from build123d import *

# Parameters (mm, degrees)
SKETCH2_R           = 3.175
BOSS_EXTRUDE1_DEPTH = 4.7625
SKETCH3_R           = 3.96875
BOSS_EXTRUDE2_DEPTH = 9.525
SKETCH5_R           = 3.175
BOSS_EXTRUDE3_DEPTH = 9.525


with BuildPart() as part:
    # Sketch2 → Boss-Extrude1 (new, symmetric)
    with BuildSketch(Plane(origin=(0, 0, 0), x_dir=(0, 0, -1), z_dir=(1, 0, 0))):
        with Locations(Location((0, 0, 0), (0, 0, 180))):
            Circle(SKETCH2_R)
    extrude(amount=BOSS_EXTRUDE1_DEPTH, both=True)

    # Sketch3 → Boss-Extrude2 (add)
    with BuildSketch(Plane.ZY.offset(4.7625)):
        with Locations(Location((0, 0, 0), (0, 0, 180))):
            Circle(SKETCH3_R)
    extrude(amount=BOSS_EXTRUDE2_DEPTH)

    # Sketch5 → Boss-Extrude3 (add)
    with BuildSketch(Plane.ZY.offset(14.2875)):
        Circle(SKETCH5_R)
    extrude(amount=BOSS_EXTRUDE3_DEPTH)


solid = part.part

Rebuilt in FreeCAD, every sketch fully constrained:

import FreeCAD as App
import Part
import Sketcher
Q = App.Units.Quantity

doc = App.newDocument("Part")
body = doc.addObject("PartDesign::Body", "Body")

# Sketch on YZ plane
sketch1 = body.newObject("Sketcher::SketchObject", "Sketch")
sketch1.AttachmentSupport = (doc.getObject("YZ_Plane"), [""])
sketch1.MapMode = "FlatFace"
sketch1.addGeometry(Part.Circle(App.Vector(0, 0, 0), App.Vector(0, 0, 1), 3.2), False)
sketch1.addConstraint([
    Sketcher.Constraint("Coincident", 0, 3, -1, 1),
    Sketcher.Constraint("Diameter", 0, Q("0.25 in")),
])
pad1 = body.newObject("PartDesign::Pad", "Pad")
pad1.Profile = sketch1
pad1.Length = Q("0.375 in")
pad1.Midplane = True

# Sketch on YZ plane
sketch2 = body.newObject("Sketcher::SketchObject", "Sketch001")
sketch2.AttachmentSupport = (doc.getObject("YZ_Plane"), [""])
sketch2.MapMode = "FlatFace"
sketch2.AttachmentOffset = App.Placement(App.Vector(0, 0, -0.1875 * 25.4), App.Rotation())
sketch2.addGeometry(Part.Circle(App.Vector(0, 0, 0), App.Vector(0, 0, 1), 4), False)
sketch2.addConstraint([
    Sketcher.Constraint("Coincident", 0, 3, -1, 1),
    Sketcher.Constraint("Diameter", 0, Q("0.3125 in")),
])
pad2 = body.newObject("PartDesign::Pad", "Pad001")
pad2.Profile = sketch2
pad2.Length = Q("0.375 in")
pad2.Reversed = True

# Sketch on YZ plane
sketch3 = body.newObject("Sketcher::SketchObject", "Sketch002")
sketch3.AttachmentSupport = (doc.getObject("YZ_Plane"), [""])
sketch3.MapMode = "FlatFace"
sketch3.AttachmentOffset = App.Placement(App.Vector(0, 0, -0.5625 * 25.4), App.Rotation())
sketch3.addGeometry(Part.Circle(App.Vector(0, 0, 0), App.Vector(0, 0, 1), 3.2), False)
sketch3.addConstraint([
    Sketcher.Constraint("Coincident", 0, 3, -1, 1),
    Sketcher.Constraint("Diameter", 0, Q("0.25 in")),
])
pad3 = body.newObject("PartDesign::Pad", "Pad002")
pad3.Profile = sketch3
pad3.Length = Q("0.375 in")
pad3.Reversed = True

doc.recompute()
